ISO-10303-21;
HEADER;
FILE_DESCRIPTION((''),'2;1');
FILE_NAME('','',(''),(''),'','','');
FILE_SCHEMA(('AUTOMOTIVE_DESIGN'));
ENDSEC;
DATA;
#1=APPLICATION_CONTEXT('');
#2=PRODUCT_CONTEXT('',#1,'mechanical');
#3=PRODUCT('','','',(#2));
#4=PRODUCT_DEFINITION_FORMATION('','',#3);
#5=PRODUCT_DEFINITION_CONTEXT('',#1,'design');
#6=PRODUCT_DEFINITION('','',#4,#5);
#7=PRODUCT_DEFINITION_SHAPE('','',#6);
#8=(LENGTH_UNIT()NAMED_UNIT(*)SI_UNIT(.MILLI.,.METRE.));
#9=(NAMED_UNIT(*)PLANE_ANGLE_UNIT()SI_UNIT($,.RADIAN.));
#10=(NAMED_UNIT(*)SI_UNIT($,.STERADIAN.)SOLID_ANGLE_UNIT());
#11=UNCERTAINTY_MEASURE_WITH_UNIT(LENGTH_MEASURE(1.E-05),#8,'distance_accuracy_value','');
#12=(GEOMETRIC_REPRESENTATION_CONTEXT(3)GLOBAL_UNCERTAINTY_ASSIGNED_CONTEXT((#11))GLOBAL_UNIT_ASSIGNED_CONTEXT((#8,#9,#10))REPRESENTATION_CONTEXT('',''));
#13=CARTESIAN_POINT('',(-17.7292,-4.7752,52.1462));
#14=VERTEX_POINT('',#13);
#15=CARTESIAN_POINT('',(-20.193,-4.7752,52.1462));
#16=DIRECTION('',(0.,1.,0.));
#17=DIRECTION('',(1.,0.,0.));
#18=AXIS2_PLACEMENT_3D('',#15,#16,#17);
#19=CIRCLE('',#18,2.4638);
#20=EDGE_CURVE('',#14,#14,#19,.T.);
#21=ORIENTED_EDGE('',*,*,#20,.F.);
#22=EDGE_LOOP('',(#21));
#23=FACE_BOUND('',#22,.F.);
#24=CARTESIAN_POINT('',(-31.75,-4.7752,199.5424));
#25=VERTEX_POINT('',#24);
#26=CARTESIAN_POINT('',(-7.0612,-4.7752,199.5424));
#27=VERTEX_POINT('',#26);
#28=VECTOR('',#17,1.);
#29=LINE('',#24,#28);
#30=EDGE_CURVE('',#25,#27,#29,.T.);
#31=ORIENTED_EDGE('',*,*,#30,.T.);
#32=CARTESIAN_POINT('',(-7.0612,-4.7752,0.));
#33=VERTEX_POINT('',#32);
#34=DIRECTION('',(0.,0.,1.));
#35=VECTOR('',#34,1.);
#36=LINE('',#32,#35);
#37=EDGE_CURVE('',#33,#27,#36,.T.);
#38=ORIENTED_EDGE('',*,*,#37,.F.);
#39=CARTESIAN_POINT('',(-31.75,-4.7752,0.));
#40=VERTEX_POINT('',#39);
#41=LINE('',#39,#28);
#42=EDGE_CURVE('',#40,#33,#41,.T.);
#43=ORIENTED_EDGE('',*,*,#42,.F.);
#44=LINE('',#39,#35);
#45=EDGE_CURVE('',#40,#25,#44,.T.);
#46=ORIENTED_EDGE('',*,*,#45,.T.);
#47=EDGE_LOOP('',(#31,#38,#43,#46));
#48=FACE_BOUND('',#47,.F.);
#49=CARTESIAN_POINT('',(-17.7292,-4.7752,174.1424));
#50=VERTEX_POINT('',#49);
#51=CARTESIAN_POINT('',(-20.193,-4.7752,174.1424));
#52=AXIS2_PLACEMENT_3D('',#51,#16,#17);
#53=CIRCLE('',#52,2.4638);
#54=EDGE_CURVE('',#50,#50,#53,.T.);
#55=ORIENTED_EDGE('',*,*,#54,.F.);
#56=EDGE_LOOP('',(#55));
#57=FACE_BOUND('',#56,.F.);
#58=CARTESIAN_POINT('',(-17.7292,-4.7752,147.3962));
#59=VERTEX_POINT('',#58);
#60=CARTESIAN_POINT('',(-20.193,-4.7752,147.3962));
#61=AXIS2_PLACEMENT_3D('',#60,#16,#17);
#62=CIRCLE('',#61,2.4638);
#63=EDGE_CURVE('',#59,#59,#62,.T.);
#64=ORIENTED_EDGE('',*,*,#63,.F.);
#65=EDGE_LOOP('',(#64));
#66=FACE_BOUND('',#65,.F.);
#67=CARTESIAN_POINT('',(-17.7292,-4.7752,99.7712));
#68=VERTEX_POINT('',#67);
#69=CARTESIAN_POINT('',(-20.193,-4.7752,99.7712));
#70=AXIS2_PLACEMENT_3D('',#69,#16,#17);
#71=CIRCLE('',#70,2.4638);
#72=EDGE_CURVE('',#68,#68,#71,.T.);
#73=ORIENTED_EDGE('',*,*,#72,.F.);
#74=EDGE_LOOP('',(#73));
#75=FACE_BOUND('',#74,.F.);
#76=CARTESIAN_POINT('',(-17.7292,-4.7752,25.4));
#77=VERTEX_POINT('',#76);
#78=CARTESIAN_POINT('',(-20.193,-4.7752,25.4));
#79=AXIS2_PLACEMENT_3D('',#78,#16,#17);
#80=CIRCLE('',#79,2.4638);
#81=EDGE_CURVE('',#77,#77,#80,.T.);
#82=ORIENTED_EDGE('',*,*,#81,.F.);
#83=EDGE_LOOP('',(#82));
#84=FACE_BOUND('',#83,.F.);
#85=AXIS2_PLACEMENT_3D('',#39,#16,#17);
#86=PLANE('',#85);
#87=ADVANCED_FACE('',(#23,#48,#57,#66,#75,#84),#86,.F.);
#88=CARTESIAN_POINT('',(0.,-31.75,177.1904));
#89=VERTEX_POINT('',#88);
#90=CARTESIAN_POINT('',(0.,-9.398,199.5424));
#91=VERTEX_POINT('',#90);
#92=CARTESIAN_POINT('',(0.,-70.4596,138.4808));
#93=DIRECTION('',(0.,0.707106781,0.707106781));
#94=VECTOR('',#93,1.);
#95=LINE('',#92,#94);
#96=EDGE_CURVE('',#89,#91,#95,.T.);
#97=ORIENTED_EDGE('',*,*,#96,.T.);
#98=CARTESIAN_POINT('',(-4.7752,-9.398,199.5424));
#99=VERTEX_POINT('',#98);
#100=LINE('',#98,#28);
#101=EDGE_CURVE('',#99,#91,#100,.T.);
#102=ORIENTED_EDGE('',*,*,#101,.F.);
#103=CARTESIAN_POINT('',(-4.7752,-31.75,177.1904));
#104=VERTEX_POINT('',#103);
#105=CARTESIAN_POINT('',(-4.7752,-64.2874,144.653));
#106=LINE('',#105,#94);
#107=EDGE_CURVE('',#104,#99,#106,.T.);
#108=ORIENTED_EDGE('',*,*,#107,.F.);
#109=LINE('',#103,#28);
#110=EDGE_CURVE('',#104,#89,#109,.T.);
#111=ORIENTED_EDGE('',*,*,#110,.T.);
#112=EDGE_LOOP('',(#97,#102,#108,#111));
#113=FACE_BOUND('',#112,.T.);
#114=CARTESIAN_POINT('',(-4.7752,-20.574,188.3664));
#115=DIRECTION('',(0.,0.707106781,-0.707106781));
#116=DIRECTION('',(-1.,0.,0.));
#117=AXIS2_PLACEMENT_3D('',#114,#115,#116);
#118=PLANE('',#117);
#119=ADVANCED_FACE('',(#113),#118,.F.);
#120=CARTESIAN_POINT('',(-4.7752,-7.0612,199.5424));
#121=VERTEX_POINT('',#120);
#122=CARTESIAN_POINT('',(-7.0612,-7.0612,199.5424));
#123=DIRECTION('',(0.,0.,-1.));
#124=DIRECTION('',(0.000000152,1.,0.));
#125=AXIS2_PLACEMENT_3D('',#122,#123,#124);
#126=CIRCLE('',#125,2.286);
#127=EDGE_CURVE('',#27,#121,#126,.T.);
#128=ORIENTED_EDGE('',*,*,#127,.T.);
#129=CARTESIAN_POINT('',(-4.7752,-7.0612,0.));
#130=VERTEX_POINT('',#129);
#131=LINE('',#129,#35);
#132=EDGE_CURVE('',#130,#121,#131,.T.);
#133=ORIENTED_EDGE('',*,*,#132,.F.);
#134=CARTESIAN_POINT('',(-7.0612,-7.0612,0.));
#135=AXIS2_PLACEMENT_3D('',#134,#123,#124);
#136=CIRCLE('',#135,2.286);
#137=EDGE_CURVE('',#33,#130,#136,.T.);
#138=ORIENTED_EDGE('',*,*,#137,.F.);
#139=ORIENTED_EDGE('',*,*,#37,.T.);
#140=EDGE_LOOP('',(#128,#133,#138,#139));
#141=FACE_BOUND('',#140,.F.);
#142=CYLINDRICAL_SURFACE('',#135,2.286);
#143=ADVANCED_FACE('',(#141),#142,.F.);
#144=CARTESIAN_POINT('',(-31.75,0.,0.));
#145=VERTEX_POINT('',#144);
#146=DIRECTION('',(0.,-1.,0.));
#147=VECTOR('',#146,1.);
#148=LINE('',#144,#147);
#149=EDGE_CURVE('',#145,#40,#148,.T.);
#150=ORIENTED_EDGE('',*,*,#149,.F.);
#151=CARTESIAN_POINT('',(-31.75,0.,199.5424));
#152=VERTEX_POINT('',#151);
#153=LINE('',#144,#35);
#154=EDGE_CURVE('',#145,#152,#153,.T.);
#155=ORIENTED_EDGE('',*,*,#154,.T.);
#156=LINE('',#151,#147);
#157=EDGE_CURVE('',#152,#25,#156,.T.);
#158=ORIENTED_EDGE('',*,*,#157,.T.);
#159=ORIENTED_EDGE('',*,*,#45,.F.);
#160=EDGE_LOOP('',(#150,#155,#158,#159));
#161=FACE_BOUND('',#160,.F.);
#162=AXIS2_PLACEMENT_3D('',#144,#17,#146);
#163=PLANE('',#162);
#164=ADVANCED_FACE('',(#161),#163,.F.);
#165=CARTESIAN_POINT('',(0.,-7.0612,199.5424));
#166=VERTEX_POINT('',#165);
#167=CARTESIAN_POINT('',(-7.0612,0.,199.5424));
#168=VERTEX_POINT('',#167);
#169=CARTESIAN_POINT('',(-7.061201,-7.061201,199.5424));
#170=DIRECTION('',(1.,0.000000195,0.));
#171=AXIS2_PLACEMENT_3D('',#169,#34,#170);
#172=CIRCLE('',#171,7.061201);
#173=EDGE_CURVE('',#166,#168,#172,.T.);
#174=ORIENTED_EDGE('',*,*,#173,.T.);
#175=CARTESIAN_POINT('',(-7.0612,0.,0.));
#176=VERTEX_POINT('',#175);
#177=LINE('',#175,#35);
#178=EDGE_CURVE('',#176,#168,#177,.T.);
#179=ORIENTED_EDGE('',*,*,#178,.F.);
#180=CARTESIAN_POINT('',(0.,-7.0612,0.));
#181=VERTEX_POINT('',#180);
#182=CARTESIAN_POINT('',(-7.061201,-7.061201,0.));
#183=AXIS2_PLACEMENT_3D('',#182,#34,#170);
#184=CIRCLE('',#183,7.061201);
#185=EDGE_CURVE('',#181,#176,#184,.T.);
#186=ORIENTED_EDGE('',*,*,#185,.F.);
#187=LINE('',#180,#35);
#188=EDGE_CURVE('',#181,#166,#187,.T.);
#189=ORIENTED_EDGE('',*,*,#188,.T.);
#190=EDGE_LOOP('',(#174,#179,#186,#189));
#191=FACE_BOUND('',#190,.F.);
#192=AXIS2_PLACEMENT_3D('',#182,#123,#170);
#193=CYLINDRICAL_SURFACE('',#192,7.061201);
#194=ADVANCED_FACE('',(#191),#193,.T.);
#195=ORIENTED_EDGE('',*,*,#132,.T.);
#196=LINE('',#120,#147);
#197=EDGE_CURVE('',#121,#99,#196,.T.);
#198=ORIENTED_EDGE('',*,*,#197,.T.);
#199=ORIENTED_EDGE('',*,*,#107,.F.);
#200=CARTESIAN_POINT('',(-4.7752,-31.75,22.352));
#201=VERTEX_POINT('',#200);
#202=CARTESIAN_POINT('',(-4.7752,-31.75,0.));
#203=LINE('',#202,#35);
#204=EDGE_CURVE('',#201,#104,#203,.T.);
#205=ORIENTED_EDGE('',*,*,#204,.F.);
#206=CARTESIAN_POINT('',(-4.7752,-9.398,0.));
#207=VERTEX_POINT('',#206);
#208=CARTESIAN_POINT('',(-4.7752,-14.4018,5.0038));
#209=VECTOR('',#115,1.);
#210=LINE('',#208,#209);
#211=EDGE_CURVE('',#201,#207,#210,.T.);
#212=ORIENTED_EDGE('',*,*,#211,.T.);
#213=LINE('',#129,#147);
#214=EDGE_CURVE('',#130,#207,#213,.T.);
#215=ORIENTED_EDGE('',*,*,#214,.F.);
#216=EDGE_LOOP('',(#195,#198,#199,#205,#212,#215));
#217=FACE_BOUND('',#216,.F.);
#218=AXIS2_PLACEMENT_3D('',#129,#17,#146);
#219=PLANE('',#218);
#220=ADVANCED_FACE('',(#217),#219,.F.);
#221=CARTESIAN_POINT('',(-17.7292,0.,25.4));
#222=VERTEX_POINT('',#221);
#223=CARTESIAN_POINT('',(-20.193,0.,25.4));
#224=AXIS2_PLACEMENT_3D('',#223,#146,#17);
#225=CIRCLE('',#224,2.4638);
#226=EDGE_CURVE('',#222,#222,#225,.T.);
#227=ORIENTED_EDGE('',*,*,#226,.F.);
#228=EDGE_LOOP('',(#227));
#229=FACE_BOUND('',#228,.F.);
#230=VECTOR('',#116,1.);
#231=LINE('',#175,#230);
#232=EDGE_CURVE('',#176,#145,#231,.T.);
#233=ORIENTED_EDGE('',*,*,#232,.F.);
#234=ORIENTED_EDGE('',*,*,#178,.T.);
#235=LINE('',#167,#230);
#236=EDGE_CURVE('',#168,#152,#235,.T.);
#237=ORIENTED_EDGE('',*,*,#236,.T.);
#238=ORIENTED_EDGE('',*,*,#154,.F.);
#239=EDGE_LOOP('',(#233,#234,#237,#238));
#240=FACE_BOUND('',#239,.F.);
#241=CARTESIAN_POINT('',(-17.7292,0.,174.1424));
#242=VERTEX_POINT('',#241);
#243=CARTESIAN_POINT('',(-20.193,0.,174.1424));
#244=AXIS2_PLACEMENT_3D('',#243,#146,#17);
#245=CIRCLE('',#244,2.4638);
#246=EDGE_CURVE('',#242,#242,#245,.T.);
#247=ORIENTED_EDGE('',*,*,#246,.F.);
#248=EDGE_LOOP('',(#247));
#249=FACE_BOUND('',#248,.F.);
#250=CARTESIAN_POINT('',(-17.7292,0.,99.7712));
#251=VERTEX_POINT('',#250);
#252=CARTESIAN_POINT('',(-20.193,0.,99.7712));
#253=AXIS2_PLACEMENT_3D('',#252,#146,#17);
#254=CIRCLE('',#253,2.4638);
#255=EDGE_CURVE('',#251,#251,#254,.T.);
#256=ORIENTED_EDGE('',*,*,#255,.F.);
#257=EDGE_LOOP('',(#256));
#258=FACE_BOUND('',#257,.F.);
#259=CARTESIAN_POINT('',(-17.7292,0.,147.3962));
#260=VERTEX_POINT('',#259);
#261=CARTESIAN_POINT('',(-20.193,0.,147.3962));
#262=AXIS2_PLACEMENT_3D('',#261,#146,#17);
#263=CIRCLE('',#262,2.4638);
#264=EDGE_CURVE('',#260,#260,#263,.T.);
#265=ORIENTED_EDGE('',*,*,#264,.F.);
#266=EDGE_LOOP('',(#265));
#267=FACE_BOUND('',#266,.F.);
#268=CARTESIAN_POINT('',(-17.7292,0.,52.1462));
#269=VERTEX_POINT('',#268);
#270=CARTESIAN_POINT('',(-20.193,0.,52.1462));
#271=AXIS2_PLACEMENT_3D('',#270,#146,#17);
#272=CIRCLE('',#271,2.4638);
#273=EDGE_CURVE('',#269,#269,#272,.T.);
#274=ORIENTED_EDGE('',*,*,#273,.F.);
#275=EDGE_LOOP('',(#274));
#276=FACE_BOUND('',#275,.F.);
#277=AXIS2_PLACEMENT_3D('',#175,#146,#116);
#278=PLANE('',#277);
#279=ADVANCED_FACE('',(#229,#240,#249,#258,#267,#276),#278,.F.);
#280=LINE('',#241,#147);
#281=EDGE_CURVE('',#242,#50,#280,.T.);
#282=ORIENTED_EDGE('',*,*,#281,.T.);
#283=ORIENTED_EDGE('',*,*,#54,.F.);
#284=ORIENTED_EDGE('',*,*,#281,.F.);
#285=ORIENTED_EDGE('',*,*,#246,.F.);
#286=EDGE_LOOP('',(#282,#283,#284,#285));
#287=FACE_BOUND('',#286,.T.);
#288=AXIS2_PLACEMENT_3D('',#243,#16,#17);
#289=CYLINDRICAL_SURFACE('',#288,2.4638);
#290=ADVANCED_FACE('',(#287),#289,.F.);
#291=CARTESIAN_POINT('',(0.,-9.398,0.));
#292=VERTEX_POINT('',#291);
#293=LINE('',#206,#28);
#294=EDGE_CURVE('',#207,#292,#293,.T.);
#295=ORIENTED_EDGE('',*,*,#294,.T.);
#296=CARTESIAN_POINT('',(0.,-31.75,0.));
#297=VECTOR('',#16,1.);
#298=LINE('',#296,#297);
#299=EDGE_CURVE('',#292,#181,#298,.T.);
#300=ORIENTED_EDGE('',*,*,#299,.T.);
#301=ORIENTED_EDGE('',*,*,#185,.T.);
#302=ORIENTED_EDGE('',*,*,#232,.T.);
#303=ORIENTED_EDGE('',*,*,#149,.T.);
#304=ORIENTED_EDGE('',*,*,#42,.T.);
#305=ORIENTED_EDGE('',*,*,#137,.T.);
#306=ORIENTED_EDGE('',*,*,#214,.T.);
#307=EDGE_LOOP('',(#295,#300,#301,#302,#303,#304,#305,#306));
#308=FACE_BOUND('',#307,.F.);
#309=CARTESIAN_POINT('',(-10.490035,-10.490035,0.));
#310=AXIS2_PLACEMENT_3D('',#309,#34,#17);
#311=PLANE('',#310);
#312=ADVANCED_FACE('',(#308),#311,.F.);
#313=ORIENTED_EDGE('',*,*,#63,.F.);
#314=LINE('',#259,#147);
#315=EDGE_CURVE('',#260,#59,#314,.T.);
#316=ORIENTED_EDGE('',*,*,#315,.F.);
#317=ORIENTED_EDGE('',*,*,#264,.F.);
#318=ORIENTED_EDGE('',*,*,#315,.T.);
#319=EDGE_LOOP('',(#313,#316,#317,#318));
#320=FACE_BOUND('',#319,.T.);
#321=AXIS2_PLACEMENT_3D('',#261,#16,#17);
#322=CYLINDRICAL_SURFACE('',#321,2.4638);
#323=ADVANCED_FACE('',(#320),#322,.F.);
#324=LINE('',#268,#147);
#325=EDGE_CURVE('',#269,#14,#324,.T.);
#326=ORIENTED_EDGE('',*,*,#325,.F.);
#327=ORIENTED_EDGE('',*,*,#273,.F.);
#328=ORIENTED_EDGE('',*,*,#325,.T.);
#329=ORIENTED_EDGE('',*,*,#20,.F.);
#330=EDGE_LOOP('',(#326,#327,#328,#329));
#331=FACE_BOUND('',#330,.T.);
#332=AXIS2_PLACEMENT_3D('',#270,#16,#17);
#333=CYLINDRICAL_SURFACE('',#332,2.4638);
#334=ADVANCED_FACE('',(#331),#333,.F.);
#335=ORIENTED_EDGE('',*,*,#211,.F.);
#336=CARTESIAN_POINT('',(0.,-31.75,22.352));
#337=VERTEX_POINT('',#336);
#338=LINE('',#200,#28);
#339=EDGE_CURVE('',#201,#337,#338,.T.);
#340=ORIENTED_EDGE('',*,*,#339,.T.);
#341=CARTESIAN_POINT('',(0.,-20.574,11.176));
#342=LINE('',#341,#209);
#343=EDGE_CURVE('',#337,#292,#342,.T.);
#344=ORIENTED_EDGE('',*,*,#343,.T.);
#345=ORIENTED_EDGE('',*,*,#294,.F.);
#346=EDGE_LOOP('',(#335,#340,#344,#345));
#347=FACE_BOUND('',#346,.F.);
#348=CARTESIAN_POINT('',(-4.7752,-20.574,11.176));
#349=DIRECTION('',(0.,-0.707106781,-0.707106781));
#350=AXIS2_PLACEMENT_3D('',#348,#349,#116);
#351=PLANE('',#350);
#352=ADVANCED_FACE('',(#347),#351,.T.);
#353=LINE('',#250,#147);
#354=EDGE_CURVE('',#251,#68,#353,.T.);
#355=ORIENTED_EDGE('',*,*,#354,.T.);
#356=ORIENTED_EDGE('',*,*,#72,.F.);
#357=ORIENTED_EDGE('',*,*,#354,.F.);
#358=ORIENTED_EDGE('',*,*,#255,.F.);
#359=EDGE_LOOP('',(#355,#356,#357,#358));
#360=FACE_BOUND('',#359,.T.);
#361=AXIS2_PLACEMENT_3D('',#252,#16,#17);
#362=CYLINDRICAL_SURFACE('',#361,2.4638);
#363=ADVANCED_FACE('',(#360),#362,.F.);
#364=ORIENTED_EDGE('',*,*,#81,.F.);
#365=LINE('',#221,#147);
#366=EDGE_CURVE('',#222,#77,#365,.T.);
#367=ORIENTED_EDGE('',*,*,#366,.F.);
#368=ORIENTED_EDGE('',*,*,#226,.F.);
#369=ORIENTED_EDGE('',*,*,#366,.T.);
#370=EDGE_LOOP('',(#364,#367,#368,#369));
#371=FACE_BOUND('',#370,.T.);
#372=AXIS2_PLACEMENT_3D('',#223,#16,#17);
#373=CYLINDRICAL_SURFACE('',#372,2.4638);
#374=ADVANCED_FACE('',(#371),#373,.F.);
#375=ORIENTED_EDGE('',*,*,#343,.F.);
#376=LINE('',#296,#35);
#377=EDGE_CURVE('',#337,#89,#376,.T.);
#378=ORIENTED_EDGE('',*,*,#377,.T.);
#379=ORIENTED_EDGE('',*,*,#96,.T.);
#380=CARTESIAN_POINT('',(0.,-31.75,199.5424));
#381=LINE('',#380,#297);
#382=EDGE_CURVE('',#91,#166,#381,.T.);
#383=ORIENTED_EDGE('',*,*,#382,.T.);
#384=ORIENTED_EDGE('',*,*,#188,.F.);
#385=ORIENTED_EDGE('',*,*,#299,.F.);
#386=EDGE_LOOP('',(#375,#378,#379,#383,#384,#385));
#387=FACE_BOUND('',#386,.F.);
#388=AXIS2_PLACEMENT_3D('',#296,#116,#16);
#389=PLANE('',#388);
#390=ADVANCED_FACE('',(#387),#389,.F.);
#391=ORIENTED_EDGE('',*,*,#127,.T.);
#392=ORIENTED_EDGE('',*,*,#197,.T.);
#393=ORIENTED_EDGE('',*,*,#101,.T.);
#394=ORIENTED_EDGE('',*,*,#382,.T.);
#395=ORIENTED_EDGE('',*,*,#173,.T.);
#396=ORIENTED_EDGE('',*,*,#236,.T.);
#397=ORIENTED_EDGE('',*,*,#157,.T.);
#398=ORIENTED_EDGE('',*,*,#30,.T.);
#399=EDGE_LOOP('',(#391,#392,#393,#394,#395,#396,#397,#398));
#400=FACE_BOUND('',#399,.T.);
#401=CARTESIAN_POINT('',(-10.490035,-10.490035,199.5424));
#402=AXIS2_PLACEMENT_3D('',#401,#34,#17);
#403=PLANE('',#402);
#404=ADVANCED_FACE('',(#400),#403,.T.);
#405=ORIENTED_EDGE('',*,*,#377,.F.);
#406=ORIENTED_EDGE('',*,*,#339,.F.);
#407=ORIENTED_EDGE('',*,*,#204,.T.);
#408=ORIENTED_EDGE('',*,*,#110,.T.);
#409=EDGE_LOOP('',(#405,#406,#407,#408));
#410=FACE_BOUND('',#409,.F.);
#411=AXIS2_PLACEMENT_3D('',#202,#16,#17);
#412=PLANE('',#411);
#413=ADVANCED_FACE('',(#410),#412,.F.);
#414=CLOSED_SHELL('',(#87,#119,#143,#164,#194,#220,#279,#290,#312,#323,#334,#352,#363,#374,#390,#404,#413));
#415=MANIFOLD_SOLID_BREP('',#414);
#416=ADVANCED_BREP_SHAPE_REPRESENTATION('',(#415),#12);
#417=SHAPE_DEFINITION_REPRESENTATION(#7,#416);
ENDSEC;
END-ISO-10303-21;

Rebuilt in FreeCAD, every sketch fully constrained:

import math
import FreeCAD as App
import Part
import Sketcher

V = App.Vector
Q = App.Units.Quantity


def edges_at(feature, points):
    """Names of the edges that pass closest to the given points."""
    edges = feature.Shape.Edges
    near = lambda p: min(range(len(edges)), key=lambda i: edges[i].distToShape(Part.Vertex(*p))[0])
    return sorted({f"Edge{near(p) + 1}" for p in points})

doc = App.newDocument("Part")
params = doc.addObject("Spreadsheet::Sheet", "Params")
for row, (alias, value) in enumerate([
    ("sketch1_radius", "0.09 in"),
    ("sketch1_radius2", "0.2780001 in"),
    ("sketch1_width", "0.972 in"),
    ("pad1_length", "7.856 in"),
    ("chamfer_size", "0.88 in"),
    ("sketch2_diameter", "0.194 in"),
    ("pocket1_length", "1 in"),
], start=1):
    params.set(f"A{row}", alias)
    params.set(f"B{row}", "=" + value)
    params.setAlias(f"B{row}", alias)

body = doc.addObject("PartDesign::Body", "Body")

# Sketch on XY plane
sketch1 = body.newObject("Sketcher::SketchObject", "Sketch")
sketch1.AttachmentSupport = (doc.getObject("XY_Plane"), [""])
sketch1.MapMode = "FlatFace"
sketch1.addGeometry(Part.LineSegment(V(0, -31.8, 0), V(0, -7.1, 0)), False)
sketch1.addGeometry(Part.ArcOfCircle(Part.Circle(V(-7.1, -7.1, 0), V(0, 0, 1), 7.1), math.radians(0), math.radians(90)), False)
sketch1.addGeometry(Part.LineSegment(V(-7.1, 0, 0), V(-31.8, 0, 0)), False)
sketch1.addGeometry(Part.LineSegment(V(-31.8, 0, 0), V(-31.8, -4.8, 0)), False)
sketch1.addGeometry(Part.LineSegment(V(-31.8, -4.8, 0), V(-7.1, -4.8, 0)), False)
sketch1.addGeometry(Part.ArcOfCircle(Part.Circle(V(-7.1, -7.1, 0), V(0, 0, 1), 2.3), math.radians(0), math.radians(90)), False)
sketch1.addGeometry(Part.LineSegment(V(-4.8, -7.1, 0), V(-4.8, -31.8, 0)), False)
sketch1.addGeometry(Part.LineSegment(V(-4.8, -31.8, 0), V(0, -31.8, 0)), False)
sketch1.addConstraint(Sketcher.Constraint("Tangent", 0, 2, 1, 1))
sketch1.addConstraint(Sketcher.Constraint("Tangent", 1, 2, 2, 1))
sketch1.addConstraint(Sketcher.Constraint("Coincident", 2, 2, 3, 1))
sketch1.addConstraint(Sketcher.Constraint("Coincident", 3, 2, 4, 1))
sketch1.addConstraint(Sketcher.Constraint("Tangent", 4, 2, 5, 2))
sketch1.addConstraint(Sketcher.Constraint("Tangent", 5, 1, 6, 1))
sketch1.addConstraint(Sketcher.Constraint("Coincident", 6, 2, 7, 1))
sketch1.addConstraint(Sketcher.Constraint("Coincident", 7, 2, 0, 1))
sketch1.addConstraint(Sketcher.Constraint("Vertical", 0))
sketch1.addConstraint(Sketcher.Constraint("Horizontal", 2))
sketch1.addConstraint(Sketcher.Constraint("Vertical", 3))
sketch1.addConstraint(Sketcher.Constraint("Horizontal", 4))
sketch1.addConstraint(Sketcher.Constraint("Vertical", 6))
sketch1.addConstraint(Sketcher.Constraint("Horizontal", 7))
sketch1.addConstraint(Sketcher.Constraint("Coincident", 5, 3, 1, 3))
sketch1.addConstraint(Sketcher.Constraint("PointOnObject", 0, 2, -2))
sketch1.addConstraint(Sketcher.Constraint("PointOnObject", 1, 2, -1))
sketch1.addConstraint(Sketcher.Constraint("Equal", 4, 0))
sketch1.addConstraint(Sketcher.Constraint("Radius", 5, Q("0.09 in")))
sketch1.addConstraint(Sketcher.Constraint("Radius", 1, Q("0.2780001 in")))
sketch1.addConstraint(Sketcher.Constraint("DistanceX", 2, 2, 2, 1, Q("0.972 in")))
sketch1.setExpression("Constraints[18]", "Params.sketch1_radius")
sketch1.setExpression("Constraints[19]", "Params.sketch1_radius2")
sketch1.setExpression("Constraints[20]", "Params.sketch1_width")
pad1 = body.newObject("PartDesign::Pad", "Pad")
pad1.Profile = sketch1
pad1.setExpression("Length", "Params.pad1_length")
doc.recompute()

chamfer = body.newObject("PartDesign::Chamfer", "Chamfer")
chamfer.Base = (pad1, edges_at(pad1, [(-2.388, -31.75, 199.542), (-2.388, -31.75, 0)]))
chamfer.setExpression("Size", "Params.chamfer_size")

# Sketch on XZ plane
sketch2 = body.newObject("Sketcher::SketchObject", "Sketch001")
sketch2.AttachmentSupport = (doc.getObject("XZ_Plane"), [""])
sketch2.MapMode = "FlatFace"
sketch2.addGeometry(Part.Circle(V(-20.2, 174.1, 0), V(0, 0, 1), 2.5), False)
sketch2.addGeometry(Part.Circle(V(-20.2, 99.8, 0), V(0, 0, 1), 2.5), False)
sketch2.addGeometry(Part.Circle(V(-20.2, 25.4, 0), V(0, 0, 1), 2.5), False)
sketch2.addGeometry(Part.Circle(V(-20.2, 147.4, 0), V(0, 0, 1), 2.5), False)
sketch2.addGeometry(Part.Circle(V(-20.2, 52.1, 0), V(0, 0, 1), 2.5), False)
sketch2.addConstraint(Sketcher.Constraint("Equal", 0, 1))
sketch2.addConstraint(Sketcher.Constraint("Equal", 1, 2))
sketch2.addConstraint(Sketcher.Constraint("Equal", 2, 3))
sketch2.addConstraint(Sketcher.Constraint("Equal", 3, 4))
sketch2.addConstraint(Sketcher.Constraint("Vertical", 0, 3, 1, 3))
sketch2.addConstraint(Sketcher.Constraint("Vertical", 1, 3, 2, 3))
sketch2.addConstraint(Sketcher.Constraint("Vertical", 2, 3, 3, 3))
sketch2.addConstraint(Sketcher.Constraint("Vertical", 3, 3, 4, 3))
sketch2.addConstraint(Sketcher.Constraint("Diameter", 0, Q("0.194 in")))
sketch2.addConstraint(Sketcher.Constraint("DistanceY", -1, 1, 2, 3, Q("1 in")))
sketch2.addConstraint(Sketcher.Constraint("DistanceY", 4, 3, 3, 3, Q("3.75 in")))
sketch2.addConstraint(Sketcher.Constraint("DistanceX", 0, 3, -1, 1, Q("0.795 in")))
sketch2.addConstraint(Sketcher.Constraint("DistanceY", -1, 1, 0, 3, Q("6.856 in")))
sketch2.addConstraint(Sketcher.Constraint("DistanceY", -1, 1, 1, 3, Q("3.928 in")))
sketch2.addConstraint(Sketcher.Constraint("DistanceY", -1, 1, 3, 3, Q("5.803 in")))
sketch2.setExpression("Constraints[8]", "Params.sketch2_diameter")
pocket1 = body.newObject("PartDesign::Pocket", "Pocket")
pocket1.Profile = sketch2
pocket1.setExpression("Length", "Params.pocket1_length")
pocket1.Reversed = True

doc.recompute()
